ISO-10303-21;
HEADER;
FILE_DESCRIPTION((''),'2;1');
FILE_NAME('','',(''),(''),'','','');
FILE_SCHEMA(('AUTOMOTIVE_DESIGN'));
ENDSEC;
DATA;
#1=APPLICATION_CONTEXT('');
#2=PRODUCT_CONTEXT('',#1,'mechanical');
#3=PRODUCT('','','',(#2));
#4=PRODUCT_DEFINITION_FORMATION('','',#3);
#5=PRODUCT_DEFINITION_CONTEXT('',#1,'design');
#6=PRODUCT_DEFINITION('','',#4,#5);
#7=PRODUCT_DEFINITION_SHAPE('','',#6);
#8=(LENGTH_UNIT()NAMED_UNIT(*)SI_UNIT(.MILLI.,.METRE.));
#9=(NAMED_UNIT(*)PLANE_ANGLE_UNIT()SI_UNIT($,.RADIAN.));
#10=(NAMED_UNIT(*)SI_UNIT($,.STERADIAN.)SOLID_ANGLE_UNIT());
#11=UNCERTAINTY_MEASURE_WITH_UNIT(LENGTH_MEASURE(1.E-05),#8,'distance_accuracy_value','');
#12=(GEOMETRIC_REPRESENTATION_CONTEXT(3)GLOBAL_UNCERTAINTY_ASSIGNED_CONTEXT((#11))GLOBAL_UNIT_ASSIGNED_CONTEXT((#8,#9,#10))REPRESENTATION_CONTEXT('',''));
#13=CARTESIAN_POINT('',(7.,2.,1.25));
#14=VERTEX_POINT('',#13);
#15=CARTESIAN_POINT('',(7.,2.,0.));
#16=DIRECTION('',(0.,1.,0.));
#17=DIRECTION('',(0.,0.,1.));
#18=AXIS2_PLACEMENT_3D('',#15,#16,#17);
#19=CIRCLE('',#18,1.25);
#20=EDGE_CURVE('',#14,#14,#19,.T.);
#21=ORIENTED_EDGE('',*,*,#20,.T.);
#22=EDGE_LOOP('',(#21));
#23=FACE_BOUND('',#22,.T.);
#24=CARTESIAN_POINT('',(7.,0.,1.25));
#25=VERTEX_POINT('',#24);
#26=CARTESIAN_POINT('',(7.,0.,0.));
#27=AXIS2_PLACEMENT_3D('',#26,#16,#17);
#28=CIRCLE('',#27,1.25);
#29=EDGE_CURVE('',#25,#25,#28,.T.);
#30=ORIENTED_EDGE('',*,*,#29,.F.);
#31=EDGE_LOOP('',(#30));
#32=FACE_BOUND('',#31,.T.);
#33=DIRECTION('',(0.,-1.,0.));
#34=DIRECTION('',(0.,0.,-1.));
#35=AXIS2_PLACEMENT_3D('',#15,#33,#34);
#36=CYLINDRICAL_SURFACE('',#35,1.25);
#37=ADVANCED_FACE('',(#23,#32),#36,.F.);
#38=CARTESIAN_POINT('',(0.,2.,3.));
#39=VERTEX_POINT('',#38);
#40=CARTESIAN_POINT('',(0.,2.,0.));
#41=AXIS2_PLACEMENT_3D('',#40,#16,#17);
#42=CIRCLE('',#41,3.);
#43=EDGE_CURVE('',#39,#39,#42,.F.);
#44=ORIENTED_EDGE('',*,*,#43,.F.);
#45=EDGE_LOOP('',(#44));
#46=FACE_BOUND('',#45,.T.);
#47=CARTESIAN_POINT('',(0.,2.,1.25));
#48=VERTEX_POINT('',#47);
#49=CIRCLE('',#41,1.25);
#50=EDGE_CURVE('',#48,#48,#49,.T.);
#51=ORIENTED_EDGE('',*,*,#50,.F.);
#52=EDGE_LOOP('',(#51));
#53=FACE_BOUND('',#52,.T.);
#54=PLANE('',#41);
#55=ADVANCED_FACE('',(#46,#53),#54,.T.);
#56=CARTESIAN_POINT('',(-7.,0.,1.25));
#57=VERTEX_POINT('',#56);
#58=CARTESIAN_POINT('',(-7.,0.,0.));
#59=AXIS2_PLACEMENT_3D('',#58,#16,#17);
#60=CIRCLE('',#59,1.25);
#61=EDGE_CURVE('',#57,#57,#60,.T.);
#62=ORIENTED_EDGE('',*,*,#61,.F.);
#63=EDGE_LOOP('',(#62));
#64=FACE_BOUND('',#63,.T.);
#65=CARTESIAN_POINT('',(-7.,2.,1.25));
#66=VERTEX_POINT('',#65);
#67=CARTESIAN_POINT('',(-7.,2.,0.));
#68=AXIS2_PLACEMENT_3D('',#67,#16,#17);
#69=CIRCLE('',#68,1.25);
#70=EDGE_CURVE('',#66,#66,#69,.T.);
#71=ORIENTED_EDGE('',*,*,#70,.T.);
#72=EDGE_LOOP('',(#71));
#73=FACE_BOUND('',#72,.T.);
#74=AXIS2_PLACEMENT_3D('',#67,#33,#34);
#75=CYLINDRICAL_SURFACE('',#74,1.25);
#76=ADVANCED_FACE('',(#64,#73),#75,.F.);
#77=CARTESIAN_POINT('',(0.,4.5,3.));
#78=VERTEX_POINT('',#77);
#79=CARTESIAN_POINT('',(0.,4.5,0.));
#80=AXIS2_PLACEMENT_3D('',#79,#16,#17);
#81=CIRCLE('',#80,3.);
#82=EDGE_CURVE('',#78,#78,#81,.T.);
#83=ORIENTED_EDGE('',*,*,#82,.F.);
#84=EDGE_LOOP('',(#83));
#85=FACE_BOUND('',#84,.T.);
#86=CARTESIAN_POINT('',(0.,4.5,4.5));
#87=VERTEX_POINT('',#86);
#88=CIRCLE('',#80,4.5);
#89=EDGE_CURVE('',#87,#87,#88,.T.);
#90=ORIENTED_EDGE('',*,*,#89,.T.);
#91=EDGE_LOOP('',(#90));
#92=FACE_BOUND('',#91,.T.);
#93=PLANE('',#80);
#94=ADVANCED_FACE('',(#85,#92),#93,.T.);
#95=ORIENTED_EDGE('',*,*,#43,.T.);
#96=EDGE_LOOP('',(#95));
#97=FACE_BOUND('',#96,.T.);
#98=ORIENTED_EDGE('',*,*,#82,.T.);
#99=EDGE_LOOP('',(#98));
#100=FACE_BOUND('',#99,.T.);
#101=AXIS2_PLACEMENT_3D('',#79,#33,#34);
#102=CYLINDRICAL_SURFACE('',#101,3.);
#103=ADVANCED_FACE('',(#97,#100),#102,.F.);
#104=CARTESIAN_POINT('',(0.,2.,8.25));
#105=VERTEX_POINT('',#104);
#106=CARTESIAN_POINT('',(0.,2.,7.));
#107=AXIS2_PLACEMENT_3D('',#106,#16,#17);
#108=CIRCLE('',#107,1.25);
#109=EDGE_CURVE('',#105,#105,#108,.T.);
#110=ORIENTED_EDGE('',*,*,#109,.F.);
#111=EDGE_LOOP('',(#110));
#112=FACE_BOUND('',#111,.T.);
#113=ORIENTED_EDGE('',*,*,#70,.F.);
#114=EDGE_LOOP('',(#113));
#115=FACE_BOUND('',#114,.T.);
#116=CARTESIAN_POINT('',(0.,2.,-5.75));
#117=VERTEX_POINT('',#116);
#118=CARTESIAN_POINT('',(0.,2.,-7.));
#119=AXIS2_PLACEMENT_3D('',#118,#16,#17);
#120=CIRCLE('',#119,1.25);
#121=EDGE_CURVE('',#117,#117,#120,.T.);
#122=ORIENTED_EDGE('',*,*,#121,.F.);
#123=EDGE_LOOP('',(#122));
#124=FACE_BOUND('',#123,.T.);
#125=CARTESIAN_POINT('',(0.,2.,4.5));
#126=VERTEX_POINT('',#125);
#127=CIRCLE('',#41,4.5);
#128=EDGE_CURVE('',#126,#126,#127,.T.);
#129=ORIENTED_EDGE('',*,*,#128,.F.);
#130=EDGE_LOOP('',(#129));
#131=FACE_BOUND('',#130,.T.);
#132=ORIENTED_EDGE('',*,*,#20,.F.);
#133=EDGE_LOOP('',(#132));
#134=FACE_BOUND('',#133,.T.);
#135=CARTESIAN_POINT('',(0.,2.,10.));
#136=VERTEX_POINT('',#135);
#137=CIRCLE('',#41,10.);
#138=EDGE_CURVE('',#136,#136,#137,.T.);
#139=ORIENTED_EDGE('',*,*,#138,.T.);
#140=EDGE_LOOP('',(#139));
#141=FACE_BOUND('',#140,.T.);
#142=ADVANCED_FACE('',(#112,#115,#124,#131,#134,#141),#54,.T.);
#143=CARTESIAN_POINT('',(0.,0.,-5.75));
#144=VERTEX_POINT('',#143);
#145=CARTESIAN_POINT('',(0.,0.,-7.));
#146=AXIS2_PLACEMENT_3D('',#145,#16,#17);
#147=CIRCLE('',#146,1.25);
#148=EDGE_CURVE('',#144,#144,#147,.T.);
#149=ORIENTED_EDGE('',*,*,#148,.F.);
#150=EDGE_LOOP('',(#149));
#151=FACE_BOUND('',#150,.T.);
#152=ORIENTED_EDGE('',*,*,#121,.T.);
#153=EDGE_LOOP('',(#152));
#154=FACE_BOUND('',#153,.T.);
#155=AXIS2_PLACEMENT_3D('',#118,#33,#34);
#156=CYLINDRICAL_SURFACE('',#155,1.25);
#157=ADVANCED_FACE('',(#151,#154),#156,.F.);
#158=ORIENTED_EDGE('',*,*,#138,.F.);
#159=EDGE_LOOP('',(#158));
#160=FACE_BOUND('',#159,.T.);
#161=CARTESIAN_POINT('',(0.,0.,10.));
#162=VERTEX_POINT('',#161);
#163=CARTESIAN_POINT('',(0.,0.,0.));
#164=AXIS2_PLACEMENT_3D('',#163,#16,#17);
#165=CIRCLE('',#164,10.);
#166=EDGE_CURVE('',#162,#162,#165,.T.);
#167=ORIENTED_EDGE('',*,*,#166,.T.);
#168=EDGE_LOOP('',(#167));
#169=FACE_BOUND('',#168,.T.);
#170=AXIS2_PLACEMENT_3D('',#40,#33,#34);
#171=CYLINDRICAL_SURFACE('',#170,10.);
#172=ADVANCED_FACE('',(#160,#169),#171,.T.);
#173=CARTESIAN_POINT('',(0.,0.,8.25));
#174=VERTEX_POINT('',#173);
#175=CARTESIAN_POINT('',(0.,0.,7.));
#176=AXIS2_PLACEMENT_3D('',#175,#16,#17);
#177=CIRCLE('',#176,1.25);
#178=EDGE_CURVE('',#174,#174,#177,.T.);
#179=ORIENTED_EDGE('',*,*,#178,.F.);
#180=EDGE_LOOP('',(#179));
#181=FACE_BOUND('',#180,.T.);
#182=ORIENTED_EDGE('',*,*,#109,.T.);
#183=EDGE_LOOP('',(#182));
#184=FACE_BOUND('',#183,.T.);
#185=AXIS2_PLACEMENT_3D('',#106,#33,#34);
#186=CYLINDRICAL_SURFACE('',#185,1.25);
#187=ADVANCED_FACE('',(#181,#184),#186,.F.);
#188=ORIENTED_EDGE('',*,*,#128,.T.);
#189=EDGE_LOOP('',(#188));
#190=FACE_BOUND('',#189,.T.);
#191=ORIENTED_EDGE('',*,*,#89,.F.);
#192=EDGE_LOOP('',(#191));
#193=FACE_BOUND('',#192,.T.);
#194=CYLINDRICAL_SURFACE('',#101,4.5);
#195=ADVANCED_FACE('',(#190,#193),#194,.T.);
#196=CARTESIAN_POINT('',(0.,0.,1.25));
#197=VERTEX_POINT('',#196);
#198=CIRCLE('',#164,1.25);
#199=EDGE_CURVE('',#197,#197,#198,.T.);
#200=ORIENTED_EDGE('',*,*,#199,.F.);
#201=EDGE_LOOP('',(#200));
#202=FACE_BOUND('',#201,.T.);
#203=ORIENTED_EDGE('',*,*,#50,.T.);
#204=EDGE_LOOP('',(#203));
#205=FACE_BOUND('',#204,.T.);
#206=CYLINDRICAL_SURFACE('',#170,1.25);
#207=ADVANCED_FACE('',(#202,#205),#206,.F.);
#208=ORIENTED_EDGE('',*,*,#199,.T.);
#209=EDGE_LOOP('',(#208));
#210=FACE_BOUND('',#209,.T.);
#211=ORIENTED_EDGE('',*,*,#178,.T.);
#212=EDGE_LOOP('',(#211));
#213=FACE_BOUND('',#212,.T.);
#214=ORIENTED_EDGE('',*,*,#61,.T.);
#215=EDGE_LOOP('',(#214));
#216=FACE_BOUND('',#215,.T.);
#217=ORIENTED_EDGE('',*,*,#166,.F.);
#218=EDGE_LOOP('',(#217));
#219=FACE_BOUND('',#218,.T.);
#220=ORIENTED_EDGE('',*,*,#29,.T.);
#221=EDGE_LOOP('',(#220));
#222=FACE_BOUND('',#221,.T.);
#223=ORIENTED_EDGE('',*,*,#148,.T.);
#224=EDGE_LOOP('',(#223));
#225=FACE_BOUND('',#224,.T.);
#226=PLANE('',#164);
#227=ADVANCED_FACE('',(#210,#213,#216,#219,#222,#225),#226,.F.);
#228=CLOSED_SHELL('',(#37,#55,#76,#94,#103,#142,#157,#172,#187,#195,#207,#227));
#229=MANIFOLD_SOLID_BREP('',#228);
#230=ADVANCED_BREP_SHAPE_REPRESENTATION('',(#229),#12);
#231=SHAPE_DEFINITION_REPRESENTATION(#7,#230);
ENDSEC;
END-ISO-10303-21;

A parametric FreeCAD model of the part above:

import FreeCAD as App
import Part
import Sketcher
from FreeCAD import Vector
Q = App.Units.Quantity

doc = App.newDocument("Part")
body = doc.addObject("PartDesign::Body", "Body")

# Sketch on XZ plane
sketch1 = doc.addObject("Sketcher::SketchObject", "Sketch")
body.addObject(sketch1)
sketch1.AttachmentSupport = (doc.XZ_Plane, [""])
sketch1.MapMode = "FlatFace"
sketch1.addGeometry([
    Part.Circle(Vector(0, 0, 0), Vector(0, 0, 1), 10),  # 0
    Part.Circle(Vector(0, -7, 0), Vector(0, 0, 1), 1.2),  # 1
    Part.Circle(Vector(-7, 0, 0), Vector(0, 0, 1), 1.2),  # 2
    Part.Circle(Vector(7, 0, 0), Vector(0, 0, 1), 1.2),  # 3
    Part.Circle(Vector(0, 0, 0), Vector(0, 0, 1), 1.2),  # 4
    Part.Circle(Vector(0, 7, 0), Vector(0, 0, 1), 1.2),  # 5
], False)
sketch1.addConstraint([
    Sketcher.Constraint("Coincident", 0, 3, -1, 1),
    Sketcher.Constraint("Coincident", 4, 3, -1, 1),
    Sketcher.Constraint("Equal", 1, 2),
    Sketcher.Constraint("Equal", 2, 3),
    Sketcher.Constraint("Equal", 3, 4),
    Sketcher.Constraint("Equal", 4, 5),
    Sketcher.Constraint("Symmetric", 2, 3, 3, 3, -1, 1),
    Sketcher.Constraint("Symmetric", 1, 3, 5, 3, -1, 1),
    Sketcher.Constraint("PointOnObject", 1, 3, -2),
    Sketcher.Constraint("PointOnObject", 2, 3, -1),
    Sketcher.Constraint("Diameter", 0, Q("20 mm")),
    Sketcher.Constraint("Diameter", 1, Q("2.5 mm")),
    Sketcher.Constraint("DistanceY", 1, 3, -1, 1, Q("7 mm")),
    Sketcher.Constraint("DistanceX", 2, 3, -1, 1, Q("7 mm")),
])
pad1 = doc.addObject("PartDesign::Pad", "Pad")
body.addObject(pad1)
pad1.Profile = sketch1
pad1.Length = 2
pad1.Reversed = True

# Sketch on XZ plane
sketch2 = doc.addObject("Sketcher::SketchObject", "Sketch001")
body.addObject(sketch2)
sketch2.AttachmentSupport = (doc.XZ_Plane, [""])
sketch2.MapMode = "FlatFace"
sketch2.AttachmentOffset = App.Placement(Vector(0, 0, -2), App.Rotation())
sketch2.addGeometry([
    Part.Circle(Vector(0, 0, 0), Vector(0, 0, 1), 4.5),
    Part.Circle(Vector(0, 0, 0), Vector(0, 0, 1), 3),
], False)
sketch2.addConstraint([
    Sketcher.Constraint("Coincident", 0, 3, -1, 1),
    Sketcher.Constraint("Coincident", 1, 3, -1, 1),
    Sketcher.Constraint("Diameter", 0, Q("9 mm")),
    Sketcher.Constraint("Diameter", 1, Q("6 mm")),
])
pad2 = doc.addObject("PartDesign::Pad", "Pad001")
body.addObject(pad2)
pad2.Profile = sketch2
pad2.Length = 2.5
pad2.Reversed = True

doc.recompute()
